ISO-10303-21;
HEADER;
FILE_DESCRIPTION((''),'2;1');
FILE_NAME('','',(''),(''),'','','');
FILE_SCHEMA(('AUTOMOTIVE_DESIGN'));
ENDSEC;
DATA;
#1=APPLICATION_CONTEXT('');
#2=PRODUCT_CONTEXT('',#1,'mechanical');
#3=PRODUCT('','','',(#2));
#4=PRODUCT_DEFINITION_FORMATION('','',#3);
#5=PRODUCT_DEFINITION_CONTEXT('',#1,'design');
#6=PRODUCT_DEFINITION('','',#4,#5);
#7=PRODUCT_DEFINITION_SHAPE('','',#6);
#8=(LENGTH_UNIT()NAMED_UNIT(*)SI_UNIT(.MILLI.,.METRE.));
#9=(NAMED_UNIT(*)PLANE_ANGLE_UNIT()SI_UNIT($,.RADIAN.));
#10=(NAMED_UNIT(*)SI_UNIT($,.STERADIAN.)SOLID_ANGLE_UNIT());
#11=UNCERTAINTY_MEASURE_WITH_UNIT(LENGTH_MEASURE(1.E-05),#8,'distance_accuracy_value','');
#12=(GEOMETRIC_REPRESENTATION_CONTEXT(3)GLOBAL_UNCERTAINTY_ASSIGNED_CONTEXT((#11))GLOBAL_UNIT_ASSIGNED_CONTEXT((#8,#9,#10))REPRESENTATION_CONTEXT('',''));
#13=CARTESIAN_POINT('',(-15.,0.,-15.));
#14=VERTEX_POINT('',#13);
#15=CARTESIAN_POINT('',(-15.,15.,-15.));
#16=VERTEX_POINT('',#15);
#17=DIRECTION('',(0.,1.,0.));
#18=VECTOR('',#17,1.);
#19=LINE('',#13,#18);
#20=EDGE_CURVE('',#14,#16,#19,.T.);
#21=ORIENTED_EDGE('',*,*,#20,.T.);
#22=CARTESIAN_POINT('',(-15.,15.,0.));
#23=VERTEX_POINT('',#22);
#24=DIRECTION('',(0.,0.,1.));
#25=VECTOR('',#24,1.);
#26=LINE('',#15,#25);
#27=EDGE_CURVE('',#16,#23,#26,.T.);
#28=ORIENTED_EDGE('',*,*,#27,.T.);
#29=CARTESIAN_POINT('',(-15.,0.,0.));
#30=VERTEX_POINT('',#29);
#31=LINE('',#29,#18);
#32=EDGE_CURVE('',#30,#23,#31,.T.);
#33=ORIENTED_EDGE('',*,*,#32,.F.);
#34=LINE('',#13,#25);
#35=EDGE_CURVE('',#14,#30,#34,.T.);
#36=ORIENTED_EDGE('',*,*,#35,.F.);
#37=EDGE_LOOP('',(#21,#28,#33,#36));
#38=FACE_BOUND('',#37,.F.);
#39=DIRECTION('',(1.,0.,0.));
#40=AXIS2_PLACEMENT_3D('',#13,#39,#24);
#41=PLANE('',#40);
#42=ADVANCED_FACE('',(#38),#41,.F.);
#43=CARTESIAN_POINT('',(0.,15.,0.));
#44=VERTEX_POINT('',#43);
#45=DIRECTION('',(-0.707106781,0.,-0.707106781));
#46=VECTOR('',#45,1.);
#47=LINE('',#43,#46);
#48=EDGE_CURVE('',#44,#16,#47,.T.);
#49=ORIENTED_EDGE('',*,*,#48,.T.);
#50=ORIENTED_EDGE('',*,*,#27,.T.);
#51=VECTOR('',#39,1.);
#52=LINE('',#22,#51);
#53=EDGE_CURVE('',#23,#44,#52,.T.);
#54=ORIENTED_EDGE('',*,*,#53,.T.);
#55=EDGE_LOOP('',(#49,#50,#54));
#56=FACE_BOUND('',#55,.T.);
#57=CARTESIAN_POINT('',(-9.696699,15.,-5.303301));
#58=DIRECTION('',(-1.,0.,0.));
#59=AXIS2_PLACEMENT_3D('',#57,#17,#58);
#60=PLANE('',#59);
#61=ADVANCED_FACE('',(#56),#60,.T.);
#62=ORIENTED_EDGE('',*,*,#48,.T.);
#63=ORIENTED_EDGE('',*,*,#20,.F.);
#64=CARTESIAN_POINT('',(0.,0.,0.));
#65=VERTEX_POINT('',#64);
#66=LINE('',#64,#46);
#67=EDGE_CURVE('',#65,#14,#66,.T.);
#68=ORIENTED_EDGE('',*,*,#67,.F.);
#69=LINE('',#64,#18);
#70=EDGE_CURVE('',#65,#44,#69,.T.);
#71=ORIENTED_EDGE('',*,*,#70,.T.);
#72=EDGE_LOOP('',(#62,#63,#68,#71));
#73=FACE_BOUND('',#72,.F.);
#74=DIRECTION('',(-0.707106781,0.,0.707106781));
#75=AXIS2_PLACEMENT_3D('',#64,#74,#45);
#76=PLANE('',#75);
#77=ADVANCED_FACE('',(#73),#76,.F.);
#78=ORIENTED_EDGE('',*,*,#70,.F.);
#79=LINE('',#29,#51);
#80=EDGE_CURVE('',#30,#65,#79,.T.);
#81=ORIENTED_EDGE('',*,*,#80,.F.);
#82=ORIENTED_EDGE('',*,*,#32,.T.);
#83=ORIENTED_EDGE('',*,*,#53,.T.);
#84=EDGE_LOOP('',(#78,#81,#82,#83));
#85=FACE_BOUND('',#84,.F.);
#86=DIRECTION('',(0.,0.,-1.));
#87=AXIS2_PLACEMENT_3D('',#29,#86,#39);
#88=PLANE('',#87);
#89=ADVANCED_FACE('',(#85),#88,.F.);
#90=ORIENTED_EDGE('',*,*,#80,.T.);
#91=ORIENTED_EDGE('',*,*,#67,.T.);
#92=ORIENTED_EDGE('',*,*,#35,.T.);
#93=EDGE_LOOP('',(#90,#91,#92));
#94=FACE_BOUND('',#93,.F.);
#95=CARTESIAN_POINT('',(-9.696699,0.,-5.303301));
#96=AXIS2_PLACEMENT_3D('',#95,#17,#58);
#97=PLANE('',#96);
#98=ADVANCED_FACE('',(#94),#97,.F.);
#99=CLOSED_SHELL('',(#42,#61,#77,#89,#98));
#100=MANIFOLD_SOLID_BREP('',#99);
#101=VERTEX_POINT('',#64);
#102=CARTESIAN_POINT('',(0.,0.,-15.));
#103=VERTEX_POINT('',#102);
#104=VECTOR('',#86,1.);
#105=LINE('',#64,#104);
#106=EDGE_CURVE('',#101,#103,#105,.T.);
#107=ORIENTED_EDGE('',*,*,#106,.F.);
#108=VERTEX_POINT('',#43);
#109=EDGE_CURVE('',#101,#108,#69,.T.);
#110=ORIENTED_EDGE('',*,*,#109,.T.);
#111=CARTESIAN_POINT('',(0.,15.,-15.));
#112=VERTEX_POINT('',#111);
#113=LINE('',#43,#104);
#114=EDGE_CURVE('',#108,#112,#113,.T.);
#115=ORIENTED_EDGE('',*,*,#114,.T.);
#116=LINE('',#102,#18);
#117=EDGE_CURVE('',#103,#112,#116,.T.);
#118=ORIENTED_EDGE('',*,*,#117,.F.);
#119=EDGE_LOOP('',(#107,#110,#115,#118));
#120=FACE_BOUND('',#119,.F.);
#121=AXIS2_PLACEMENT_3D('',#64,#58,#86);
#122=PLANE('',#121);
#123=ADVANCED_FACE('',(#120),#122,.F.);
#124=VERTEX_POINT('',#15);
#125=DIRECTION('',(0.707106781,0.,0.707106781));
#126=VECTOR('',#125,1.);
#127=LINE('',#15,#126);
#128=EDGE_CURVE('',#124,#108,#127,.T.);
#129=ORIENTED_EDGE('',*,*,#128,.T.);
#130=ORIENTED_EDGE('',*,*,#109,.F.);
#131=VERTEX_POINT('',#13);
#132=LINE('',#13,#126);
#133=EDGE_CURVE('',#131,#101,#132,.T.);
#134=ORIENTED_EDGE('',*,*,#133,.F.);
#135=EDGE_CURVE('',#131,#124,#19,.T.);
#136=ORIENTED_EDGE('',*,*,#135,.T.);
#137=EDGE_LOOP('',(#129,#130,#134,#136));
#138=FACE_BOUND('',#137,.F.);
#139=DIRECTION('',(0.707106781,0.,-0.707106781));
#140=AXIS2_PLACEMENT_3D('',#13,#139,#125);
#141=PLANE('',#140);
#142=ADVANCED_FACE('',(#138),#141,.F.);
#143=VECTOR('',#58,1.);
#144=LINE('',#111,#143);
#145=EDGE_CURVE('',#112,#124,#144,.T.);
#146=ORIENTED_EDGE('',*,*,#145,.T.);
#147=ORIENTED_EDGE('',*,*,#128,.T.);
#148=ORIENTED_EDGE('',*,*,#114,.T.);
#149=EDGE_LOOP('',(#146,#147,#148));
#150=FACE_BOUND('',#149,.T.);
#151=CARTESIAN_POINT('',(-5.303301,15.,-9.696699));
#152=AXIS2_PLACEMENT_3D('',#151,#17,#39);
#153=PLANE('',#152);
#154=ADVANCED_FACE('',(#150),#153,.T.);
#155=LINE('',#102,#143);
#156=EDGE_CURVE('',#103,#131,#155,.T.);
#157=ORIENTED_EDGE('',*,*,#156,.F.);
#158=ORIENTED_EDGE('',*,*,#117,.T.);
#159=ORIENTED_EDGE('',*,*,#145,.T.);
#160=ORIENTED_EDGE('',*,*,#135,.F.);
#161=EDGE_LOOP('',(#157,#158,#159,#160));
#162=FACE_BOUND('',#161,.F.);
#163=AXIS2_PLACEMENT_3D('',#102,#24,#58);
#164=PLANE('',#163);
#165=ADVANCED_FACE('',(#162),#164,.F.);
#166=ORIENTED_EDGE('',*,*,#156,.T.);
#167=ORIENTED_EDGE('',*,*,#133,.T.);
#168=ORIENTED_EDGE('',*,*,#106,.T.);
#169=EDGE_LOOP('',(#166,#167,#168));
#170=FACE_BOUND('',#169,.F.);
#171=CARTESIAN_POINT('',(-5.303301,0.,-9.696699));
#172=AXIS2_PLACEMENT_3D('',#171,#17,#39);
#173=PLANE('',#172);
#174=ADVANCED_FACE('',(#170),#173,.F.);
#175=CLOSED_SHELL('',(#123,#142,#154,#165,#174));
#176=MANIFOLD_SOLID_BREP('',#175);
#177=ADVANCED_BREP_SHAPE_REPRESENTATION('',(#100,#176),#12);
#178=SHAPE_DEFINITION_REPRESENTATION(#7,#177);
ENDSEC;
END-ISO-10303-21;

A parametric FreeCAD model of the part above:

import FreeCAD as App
import Part
import Sketcher
Q = App.Units.Quantity

doc = App.newDocument("Part")
body = doc.addObject("PartDesign::Body", "Body")

# Sketch on XZ plane
sketch1 = body.newObject("Sketcher::SketchObject", "Sketch")
sketch1.AttachmentSupport = (doc.getObject("XZ_Plane"), [""])
sketch1.MapMode = "FlatFace"
sketch1.addGeometry(Part.LineSegment(App.Vector(0, 0, 0), App.Vector(0, -15, 0)), False)
sketch1.addGeometry(Part.LineSegment(App.Vector(0, -15, 0), App.Vector(-15, -15, 0)), False)
sketch1.addGeometry(Part.LineSegment(App.Vector(-15, -15, 0), App.Vector(0, 0, 0)), False)
sketch1.addConstraint(Sketcher.Constraint("Coincident", 0, 2, 1, 1))
sketch1.addConstraint(Sketcher.Constraint("Coincident", 1, 2, 2, 1))
sketch1.addConstraint(Sketcher.Constraint("Coincident", 2, 2, 0, 1))
sketch1.addConstraint(Sketcher.Constraint("Vertical", 0))
sketch1.addConstraint(Sketcher.Constraint("Horizontal", 1))
sketch1.addConstraint(Sketcher.Constraint("Coincident", 2, 2, -1, 1))
sketch1.addConstraint(Sketcher.Constraint("Equal", 1, 0))
sketch1.addConstraint(Sketcher.Constraint("DistanceX", 1, 2, 1, 1, Q("15 mm")))
pad1 = body.newObject("PartDesign::Pad", "Pad")
pad1.Profile = sketch1
pad1.Length = 15
pad1.Reversed = True
body2 = doc.addObject("PartDesign::Body", "Body001")

# Sketch on XZ plane
sketch2 = body2.newObject("Sketcher::SketchObject", "Sketch001")
sketch2.AttachmentSupport = (doc.getObject("XZ_Plane001"), [""])
sketch2.MapMode = "FlatFace"
sketch2.addGeometry(Part.LineSegment(App.Vector(-15, 0, 0), App.Vector(-15, -15, 0)), False)
sketch2.addGeometry(Part.LineSegment(App.Vector(-15, -15, 0), App.Vector(0, 0, 0)), False)
sketch2.addGeometry(Part.LineSegment(App.Vector(0, 0, 0), App.Vector(-15, 0, 0)), False)
sketch2.addConstraint(Sketcher.Constraint("Coincident", 0, 2, 1, 1))
sketch2.addConstraint(Sketcher.Constraint("Coincident", 1, 2, 2, 1))
sketch2.addConstraint(Sketcher.Constraint("Coincident", 2, 2, 0, 1))
sketch2.addConstraint(Sketcher.Constraint("Vertical", 0))
sketch2.addConstraint(Sketcher.Constraint("Horizontal", 2))
sketch2.addConstraint(Sketcher.Constraint("Coincident", 1, 2, -1, 1))
sketch2.addConstraint(Sketcher.Constraint("Equal", 2, 0))
sketch2.addConstraint(Sketcher.Constraint("DistanceX", 2, 2, 2, 1, Q("15 mm")))
pad2 = body2.newObject("PartDesign::Pad", "Pad001")
pad2.Profile = sketch2
pad2.Length = 15
pad2.Reversed = True

doc.recompute()
